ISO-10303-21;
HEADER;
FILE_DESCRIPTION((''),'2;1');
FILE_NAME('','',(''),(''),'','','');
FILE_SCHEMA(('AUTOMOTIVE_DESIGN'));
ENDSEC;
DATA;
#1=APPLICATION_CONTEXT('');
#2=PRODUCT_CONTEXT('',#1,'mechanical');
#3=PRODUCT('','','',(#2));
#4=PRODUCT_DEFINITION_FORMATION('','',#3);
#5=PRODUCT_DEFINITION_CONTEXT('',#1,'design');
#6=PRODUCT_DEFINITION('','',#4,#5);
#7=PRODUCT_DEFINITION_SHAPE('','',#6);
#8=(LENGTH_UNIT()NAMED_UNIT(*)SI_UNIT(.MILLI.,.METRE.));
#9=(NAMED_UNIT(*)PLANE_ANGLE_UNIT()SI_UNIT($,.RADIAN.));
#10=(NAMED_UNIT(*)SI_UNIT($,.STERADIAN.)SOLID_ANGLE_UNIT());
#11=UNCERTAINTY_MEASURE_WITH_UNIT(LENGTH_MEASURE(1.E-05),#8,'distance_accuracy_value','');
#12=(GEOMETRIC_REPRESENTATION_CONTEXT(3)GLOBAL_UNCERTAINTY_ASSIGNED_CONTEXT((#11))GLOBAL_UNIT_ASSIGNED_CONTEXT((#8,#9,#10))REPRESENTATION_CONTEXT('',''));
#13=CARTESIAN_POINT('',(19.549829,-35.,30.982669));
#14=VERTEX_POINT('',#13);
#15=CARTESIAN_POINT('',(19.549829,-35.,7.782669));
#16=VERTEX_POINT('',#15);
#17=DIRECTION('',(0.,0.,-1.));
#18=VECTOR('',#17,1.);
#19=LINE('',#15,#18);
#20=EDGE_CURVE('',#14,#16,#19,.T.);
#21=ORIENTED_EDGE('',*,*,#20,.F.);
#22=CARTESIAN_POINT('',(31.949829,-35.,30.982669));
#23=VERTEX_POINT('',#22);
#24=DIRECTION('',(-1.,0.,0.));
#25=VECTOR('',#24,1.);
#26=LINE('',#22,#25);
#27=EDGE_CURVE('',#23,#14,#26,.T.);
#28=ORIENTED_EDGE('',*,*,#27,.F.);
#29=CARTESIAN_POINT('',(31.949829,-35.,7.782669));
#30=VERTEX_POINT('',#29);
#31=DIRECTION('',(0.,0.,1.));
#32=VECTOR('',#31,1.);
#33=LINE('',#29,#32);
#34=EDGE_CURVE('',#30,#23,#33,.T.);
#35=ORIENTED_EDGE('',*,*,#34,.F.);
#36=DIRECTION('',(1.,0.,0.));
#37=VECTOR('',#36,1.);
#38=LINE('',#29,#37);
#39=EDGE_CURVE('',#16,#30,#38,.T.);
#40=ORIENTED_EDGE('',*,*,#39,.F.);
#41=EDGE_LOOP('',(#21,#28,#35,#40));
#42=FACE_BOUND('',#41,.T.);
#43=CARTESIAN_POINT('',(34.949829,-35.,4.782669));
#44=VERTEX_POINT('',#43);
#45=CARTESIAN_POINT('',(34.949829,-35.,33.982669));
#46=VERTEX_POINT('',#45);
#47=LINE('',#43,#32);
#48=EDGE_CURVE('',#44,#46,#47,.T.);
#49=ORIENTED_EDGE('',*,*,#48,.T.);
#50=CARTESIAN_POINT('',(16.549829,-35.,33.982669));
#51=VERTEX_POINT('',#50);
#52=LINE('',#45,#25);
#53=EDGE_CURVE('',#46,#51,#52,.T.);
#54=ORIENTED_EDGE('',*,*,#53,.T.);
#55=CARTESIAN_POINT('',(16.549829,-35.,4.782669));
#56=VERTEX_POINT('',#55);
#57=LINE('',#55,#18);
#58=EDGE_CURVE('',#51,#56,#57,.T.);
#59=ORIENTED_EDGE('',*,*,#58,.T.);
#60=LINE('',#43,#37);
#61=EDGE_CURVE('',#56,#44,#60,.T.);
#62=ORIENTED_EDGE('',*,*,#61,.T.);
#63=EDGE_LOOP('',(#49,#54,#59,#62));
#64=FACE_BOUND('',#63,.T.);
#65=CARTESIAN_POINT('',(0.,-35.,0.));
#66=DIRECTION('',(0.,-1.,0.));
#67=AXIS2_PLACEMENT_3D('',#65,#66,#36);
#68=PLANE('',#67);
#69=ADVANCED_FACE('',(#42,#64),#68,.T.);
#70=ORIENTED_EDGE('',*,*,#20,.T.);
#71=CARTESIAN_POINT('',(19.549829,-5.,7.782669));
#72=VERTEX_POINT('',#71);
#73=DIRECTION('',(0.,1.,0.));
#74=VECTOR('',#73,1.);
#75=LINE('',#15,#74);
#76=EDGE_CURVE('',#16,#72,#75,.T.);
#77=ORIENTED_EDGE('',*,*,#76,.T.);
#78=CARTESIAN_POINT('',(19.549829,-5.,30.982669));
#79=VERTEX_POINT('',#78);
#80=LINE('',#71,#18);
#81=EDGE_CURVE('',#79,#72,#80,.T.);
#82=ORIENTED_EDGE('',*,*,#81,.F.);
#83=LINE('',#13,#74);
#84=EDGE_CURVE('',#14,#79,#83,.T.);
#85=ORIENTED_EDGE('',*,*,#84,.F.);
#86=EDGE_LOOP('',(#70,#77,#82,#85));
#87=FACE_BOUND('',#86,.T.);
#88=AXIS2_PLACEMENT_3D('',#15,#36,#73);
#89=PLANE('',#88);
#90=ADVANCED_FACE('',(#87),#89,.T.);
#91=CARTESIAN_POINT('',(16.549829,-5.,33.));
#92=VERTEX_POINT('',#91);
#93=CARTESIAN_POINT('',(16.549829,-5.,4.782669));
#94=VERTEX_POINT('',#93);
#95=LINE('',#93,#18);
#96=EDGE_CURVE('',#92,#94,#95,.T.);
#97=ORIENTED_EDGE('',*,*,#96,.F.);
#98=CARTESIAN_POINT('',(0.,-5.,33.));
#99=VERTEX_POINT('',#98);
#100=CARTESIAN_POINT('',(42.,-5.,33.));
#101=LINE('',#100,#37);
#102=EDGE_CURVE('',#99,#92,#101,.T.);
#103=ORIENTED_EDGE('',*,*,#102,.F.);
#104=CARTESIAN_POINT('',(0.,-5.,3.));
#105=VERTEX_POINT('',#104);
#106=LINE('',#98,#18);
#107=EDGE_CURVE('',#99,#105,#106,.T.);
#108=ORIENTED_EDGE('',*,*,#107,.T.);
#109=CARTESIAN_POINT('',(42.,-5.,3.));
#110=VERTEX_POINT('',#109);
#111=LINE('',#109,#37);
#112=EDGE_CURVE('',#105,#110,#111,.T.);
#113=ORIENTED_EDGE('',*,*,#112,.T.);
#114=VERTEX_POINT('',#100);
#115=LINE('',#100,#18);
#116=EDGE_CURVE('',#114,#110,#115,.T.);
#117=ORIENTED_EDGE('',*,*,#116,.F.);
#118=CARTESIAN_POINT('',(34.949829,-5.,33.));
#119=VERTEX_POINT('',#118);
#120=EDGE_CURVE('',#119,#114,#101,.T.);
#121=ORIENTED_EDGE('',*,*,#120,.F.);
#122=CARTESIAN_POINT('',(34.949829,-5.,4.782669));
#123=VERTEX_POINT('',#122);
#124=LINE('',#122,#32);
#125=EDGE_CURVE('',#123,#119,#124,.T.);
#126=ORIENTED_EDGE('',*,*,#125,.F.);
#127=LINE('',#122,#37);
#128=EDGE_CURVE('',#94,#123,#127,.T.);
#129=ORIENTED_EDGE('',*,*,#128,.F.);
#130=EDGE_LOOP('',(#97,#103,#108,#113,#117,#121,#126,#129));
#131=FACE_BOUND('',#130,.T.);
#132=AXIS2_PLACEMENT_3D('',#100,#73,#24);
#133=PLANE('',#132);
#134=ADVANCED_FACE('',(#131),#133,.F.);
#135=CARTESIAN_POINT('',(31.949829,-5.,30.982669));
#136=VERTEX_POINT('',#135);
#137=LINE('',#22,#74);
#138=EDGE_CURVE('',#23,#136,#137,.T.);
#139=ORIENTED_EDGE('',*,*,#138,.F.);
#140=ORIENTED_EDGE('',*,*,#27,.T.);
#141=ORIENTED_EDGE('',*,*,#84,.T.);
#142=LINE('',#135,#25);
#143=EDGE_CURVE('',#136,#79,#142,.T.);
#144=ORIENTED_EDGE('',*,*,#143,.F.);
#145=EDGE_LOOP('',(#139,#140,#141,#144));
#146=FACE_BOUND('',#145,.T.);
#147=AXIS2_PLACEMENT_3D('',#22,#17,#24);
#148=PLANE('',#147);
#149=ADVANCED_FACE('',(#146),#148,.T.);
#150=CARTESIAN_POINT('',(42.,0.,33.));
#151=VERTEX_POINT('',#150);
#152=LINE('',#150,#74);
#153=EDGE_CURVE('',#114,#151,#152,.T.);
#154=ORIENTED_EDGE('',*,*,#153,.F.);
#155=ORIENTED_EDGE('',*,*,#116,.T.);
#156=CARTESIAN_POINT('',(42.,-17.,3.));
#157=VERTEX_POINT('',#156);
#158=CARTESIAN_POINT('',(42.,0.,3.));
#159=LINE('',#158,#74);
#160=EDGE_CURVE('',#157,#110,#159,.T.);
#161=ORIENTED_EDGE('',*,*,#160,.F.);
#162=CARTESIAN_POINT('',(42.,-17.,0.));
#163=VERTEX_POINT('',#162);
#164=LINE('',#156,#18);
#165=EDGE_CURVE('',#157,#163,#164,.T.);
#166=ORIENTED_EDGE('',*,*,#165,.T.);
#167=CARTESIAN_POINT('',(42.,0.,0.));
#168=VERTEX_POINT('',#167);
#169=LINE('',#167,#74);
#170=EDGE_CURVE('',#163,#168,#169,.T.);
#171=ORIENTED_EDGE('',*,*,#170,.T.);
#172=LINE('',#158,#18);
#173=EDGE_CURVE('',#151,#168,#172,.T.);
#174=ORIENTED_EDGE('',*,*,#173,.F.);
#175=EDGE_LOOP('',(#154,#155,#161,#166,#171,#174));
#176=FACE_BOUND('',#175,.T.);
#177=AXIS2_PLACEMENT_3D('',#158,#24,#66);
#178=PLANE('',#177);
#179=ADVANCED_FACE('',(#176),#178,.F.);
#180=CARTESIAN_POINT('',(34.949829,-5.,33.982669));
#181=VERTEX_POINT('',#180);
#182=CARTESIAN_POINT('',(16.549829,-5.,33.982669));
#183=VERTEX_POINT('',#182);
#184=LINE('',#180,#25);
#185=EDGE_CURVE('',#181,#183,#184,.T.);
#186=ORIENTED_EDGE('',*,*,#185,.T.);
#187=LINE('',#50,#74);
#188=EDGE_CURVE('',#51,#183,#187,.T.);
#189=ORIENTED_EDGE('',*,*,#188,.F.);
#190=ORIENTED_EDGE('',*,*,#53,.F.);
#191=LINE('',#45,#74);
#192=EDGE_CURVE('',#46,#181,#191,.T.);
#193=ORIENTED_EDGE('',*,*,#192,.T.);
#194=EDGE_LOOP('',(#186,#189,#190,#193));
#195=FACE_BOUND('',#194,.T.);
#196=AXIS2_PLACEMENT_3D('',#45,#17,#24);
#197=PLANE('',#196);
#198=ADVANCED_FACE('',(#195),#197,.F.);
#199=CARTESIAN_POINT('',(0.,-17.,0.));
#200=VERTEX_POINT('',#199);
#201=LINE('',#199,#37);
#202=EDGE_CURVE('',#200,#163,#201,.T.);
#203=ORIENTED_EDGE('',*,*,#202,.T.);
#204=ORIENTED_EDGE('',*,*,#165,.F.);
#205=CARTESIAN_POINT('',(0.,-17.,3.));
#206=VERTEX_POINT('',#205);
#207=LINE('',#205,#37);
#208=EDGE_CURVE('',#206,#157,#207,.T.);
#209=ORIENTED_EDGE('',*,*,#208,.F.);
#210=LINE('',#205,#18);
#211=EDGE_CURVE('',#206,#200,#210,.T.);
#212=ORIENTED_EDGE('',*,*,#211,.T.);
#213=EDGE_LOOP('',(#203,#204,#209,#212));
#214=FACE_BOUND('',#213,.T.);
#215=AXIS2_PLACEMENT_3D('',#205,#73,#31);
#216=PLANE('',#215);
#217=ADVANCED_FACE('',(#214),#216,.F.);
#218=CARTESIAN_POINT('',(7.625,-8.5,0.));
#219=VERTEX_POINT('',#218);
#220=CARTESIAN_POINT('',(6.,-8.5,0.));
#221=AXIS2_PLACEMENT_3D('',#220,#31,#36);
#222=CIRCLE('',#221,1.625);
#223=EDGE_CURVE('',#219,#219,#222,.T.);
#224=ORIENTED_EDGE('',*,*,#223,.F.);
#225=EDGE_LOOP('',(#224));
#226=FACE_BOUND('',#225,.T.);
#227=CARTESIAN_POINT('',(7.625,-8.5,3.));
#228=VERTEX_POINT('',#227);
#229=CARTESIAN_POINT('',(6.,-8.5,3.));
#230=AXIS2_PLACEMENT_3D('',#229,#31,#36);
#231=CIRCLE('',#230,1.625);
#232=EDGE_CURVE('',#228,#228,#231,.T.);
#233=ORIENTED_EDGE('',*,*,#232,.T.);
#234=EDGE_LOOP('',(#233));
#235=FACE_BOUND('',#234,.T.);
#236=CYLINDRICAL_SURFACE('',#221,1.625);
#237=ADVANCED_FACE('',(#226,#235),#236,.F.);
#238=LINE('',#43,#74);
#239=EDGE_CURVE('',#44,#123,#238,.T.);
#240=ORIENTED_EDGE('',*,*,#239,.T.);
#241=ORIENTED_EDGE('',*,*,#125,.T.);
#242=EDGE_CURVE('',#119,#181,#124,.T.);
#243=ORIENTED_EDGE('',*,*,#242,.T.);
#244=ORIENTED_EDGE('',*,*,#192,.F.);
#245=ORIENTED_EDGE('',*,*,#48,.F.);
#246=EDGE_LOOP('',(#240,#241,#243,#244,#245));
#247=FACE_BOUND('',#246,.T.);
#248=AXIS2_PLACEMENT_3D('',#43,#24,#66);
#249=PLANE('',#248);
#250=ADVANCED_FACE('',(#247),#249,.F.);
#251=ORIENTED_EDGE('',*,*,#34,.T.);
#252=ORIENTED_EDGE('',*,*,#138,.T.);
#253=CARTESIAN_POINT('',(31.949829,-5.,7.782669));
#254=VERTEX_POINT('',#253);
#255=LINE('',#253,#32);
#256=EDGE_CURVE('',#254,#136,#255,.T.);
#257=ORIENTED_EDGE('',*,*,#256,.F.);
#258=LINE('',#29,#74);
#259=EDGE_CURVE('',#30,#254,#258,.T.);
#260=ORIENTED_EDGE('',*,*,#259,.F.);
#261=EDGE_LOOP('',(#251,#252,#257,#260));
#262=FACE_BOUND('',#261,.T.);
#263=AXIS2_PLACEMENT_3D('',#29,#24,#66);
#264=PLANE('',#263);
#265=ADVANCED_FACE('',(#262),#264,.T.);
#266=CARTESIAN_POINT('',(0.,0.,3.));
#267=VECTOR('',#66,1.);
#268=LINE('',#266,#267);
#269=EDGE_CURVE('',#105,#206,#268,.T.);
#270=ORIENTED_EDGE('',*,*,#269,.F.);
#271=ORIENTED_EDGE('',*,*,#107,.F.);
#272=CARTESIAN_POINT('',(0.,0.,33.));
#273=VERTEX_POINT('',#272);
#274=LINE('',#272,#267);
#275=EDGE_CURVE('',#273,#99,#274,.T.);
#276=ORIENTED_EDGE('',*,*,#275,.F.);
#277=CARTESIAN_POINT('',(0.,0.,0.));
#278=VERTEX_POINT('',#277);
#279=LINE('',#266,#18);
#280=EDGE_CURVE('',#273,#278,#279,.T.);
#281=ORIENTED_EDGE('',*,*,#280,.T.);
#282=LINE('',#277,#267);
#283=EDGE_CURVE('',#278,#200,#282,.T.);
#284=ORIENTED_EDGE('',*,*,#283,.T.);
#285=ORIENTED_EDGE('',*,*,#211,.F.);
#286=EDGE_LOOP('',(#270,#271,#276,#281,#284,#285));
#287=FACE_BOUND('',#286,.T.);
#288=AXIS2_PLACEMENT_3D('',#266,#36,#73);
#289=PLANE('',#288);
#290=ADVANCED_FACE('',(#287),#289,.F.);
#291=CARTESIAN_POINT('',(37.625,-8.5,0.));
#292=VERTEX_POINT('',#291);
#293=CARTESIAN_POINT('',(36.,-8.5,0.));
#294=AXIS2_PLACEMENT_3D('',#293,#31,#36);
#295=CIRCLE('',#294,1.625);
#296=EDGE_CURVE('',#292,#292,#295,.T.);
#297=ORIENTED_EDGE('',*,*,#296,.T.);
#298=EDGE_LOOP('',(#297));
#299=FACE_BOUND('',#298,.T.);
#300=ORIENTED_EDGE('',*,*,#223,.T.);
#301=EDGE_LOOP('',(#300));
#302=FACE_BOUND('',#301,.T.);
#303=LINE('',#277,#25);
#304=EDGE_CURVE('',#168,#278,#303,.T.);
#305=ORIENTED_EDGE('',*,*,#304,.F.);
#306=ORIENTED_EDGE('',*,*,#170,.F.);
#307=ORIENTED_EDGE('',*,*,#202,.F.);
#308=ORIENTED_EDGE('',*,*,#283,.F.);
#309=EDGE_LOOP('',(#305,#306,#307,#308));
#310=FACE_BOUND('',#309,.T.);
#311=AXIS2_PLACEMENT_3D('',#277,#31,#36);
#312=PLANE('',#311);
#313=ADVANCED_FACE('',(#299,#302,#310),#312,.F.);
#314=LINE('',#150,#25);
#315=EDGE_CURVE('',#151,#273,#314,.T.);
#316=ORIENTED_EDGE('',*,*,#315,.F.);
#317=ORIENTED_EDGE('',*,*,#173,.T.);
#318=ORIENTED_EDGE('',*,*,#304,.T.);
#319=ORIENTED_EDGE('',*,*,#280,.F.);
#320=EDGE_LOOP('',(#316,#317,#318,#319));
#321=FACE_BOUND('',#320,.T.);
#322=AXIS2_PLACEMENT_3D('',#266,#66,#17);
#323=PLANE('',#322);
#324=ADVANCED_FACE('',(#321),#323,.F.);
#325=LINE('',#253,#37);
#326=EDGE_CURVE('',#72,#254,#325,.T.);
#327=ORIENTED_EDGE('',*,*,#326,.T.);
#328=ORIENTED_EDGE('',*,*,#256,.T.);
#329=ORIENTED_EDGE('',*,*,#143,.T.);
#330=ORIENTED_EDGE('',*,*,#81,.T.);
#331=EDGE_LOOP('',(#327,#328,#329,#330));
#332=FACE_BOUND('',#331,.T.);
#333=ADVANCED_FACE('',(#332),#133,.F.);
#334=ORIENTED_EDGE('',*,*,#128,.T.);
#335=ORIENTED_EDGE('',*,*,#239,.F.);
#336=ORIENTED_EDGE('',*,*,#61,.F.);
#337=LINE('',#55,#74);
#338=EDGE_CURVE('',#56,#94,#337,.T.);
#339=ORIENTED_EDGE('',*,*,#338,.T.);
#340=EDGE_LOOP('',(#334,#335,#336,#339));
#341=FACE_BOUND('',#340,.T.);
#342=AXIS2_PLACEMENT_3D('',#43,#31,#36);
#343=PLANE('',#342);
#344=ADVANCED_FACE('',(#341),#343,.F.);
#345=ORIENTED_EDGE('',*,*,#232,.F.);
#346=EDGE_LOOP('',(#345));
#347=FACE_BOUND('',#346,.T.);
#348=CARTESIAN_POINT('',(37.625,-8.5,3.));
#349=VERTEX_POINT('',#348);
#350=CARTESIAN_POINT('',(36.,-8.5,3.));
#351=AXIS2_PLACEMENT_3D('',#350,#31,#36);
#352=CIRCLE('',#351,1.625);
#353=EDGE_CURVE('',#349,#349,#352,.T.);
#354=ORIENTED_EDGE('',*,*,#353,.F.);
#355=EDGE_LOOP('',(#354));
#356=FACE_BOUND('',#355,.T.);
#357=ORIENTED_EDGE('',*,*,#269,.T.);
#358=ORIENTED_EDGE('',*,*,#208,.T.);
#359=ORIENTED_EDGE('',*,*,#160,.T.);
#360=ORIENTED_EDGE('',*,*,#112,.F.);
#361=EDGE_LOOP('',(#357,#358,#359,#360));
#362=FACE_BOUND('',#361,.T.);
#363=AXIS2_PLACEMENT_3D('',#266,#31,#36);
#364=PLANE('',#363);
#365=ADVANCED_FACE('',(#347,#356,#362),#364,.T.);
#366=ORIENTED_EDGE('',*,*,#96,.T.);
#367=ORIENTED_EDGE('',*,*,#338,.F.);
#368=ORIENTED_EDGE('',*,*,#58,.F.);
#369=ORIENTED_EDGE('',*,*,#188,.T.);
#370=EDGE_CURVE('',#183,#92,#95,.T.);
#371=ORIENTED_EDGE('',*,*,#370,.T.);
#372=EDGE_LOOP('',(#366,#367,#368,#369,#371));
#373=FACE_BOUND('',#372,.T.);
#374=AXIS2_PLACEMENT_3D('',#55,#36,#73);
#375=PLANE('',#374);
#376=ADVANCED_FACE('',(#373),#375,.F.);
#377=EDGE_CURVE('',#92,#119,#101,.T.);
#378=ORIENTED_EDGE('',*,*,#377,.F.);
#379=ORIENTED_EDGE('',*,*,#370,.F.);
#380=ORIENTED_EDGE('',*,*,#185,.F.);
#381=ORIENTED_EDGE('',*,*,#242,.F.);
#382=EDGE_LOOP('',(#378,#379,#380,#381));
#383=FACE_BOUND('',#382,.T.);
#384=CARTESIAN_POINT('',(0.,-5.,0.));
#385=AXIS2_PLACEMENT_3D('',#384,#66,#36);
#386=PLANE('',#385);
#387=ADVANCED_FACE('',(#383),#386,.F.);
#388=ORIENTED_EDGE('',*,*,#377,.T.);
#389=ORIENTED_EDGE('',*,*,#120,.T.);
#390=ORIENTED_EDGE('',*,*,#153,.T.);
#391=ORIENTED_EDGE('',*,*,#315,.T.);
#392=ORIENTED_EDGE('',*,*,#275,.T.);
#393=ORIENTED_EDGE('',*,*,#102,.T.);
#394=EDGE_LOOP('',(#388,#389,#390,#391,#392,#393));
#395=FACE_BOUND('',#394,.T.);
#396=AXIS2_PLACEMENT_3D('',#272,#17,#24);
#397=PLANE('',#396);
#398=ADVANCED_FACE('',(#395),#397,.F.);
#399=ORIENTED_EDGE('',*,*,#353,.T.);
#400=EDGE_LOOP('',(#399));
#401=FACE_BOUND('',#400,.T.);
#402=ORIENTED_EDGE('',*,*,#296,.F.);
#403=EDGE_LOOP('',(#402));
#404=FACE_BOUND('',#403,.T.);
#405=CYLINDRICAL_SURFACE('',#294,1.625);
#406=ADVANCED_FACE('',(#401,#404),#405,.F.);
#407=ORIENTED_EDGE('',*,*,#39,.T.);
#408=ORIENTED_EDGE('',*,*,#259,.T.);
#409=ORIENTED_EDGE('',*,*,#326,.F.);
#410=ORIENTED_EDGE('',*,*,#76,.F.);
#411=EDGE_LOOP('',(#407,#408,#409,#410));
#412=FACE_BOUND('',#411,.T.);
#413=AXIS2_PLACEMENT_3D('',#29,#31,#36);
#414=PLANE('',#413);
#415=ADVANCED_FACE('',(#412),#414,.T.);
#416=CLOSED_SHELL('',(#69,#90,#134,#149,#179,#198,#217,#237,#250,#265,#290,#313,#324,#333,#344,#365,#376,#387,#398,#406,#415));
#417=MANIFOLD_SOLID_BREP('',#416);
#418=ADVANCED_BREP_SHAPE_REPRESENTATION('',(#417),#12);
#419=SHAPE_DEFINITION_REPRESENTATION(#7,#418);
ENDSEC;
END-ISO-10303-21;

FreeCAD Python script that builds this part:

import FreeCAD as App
import Part
import Sketcher

V = App.Vector

doc = App.newDocument("Part")
body = doc.addObject("PartDesign::Body", "Body")

sketch1 = body.newObject("Sketcher::SketchObject", "Sketch")
sketch1.AttachmentSupport = (doc.getObject("XY_Plane"), [""])
sketch1.MapMode = "FlatFace"
sketch1.addGeometry([
    Part.LineSegment(V(0, 0, 0), V(0, -17, 0)),
    Part.LineSegment(V(0, -17, 0), V(42, -17, 0)),
    Part.LineSegment(V(42, -17, 0), V(42, 0, 0)),
    Part.LineSegment(V(42, 0, 0), V(0, 0, 0)),
], False)
sketch1.addConstraint([
    Sketcher.Constraint("Coincident", 0, 2, 1, 1),
    Sketcher.Constraint("Coincident", 1, 2, 2, 1),
    Sketcher.Constraint("Coincident", 2, 2, 3, 1),
    Sketcher.Constraint("Coincident", 3, 2, 0, 1),
    Sketcher.Constraint("Vertical", 0),
    Sketcher.Constraint("Horizontal", 1),
    Sketcher.Constraint("Vertical", 2),
    Sketcher.Constraint("Horizontal", 3),
    Sketcher.Constraint("Coincident", 3, 2, -1, 1),
    Sketcher.Constraint("DistanceX", 1, 1, 1, 2, 42.0),
    Sketcher.Constraint("DistanceY", 0, 2, 0, 1, 17.0),
])
pad1 = body.newObject("PartDesign::Pad", "Pad")
pad1.Profile = sketch1
pad1.Length = 3

sketch2 = body.newObject("Sketcher::SketchObject", "Sketch001")
sketch2.AttachmentSupport = (doc.getObject("XY_Plane"), [""])
sketch2.MapMode = "FlatFace"
sketch2.AttachmentOffset = App.Placement(V(0, 0, 3), App.Rotation())
sketch2.addGeometry([
    Part.Circle(V(6, -8.5, 0), V(0, 0, 1), 1.6),
    Part.Circle(V(36, -8.5, 0), V(0, 0, 1), 1.6),
], False)
sketch2.addConstraint([
    Sketcher.Constraint("Equal", 0, 1),
    Sketcher.Constraint("Horizontal", 0, 3, 1, 3),
    Sketcher.Constraint("Diameter", 0, 3.25),
    Sketcher.Constraint("DistanceX", -1, 1, 0, 3, 6.0),
    Sketcher.Constraint("DistanceX", -1, 1, 1, 3, 36.0),
    Sketcher.Constraint("DistanceY", 0, 3, -1, 1, 8.5),
])
pocket1 = body.newObject("PartDesign::Pocket", "Pocket")
pocket1.Profile = sketch2
pocket1.Type = "ThroughAll"

sketch3 = body.newObject("Sketcher::SketchObject", "Sketch002")
sketch3.AttachmentSupport = (doc.getObject("XY_Plane"), [""])
sketch3.MapMode = "FlatFace"
sketch3.AttachmentOffset = App.Placement(V(0, 0, 3), App.Rotation())
sketch3.addGeometry([
    Part.LineSegment(V(0, 0, 0), V(0, -5, 0)),
    Part.LineSegment(V(0, -5, 0), V(42, -5, 0)),
    Part.LineSegment(V(42, -5, 0), V(42, 0, 0)),
    Part.LineSegment(V(42, 0, 0), V(0, 0, 0)),
], False)
sketch3.addConstraint([
    Sketcher.Constraint("Coincident", 0, 2, 1, 1),
    Sketcher.Constraint("Coincident", 1, 2, 2, 1),
    Sketcher.Constraint("Coincident", 2, 2, 3, 1),
    Sketcher.Constraint("Coincident", 3, 2, 0, 1),
    Sketcher.Constraint("Vertical", 0),
    Sketcher.Constraint("Horizontal", 1),
    Sketcher.Constraint("Vertical", 2),
    Sketcher.Constraint("Horizontal", 3),
    Sketcher.Constraint("Coincident", 3, 2, -1, 1),
    Sketcher.Constraint("DistanceX", 1, 1, 1, 2, 42.0),
    Sketcher.Constraint("DistanceY", 0, 2, 0, 1, 5.0),
])
pad2 = body.newObject("PartDesign::Pad", "Pad001")
pad2.Profile = sketch3
pad2.Length = 30

sketch4 = body.newObject("Sketcher::SketchObject", "Sketch003")
sketch4.AttachmentSupport = (doc.getObject("XZ_Plane"), [""])
sketch4.MapMode = "FlatFace"
sketch4.AttachmentOffset = App.Placement(V(0, 0, 5), App.Rotation())
sketch4.addGeometry([
    Part.LineSegment(V(17, 34, 0), V(17, 5, 0)),
    Part.LineSegment(V(17, 5, 0), V(35, 5, 0)),
    Part.LineSegment(V(35, 5, 0), V(35, 34, 0)),
    Part.LineSegment(V(35, 34, 0), V(17, 34, 0)),
    Part.LineSegment(V(32, 8, 0), V(20, 8, 0)),
    Part.LineSegment(V(20, 8, 0), V(20, 31, 0)),
    Part.LineSegment(V(20, 31, 0), V(32, 31, 0)),
    Part.LineSegment(V(32, 31, 0), V(32, 8, 0)),
], False)
sketch4.addConstraint([
    Sketcher.Constraint("Coincident", 0, 2, 1, 1),
    Sketcher.Constraint("Coincident", 1, 2, 2, 1),
    Sketcher.Constraint("Coincident", 2, 2, 3, 1),
    Sketcher.Constraint("Coincident", 3, 2, 0, 1),
    Sketcher.Constraint("Coincident", 4, 2, 5, 1),
    Sketcher.Constraint("Coincident", 5, 2, 6, 1),
    Sketcher.Constraint("Coincident", 6, 2, 7, 1),
    Sketcher.Constraint("Coincident", 7, 2, 4, 1),
    Sketcher.Constraint("Vertical", 0),
    Sketcher.Constraint("Horizontal", 1),
    Sketcher.Constraint("Vertical", 2),
    Sketcher.Constraint("Horizontal", 3),
    Sketcher.Constraint("Horizontal", 4),
    Sketcher.Constraint("Vertical", 5),
    Sketcher.Constraint("Horizontal", 6),
    Sketcher.Constraint("Vertical", 7),
    Sketcher.Constraint("DistanceX", 1, 1, 1, 2, 18.4),
    Sketcher.Constraint("DistanceX", 4, 2, 4, 1, 12.4),
    Sketcher.Constraint("DistanceY", 0, 2, 0, 1, 29.2),
    Sketcher.Constraint("DistanceY", 5, 1, 5, 2, 23.2),
    Sketcher.Constraint("DistanceX", 0, 2, 4, 2, 3.0),
    Sketcher.Constraint("DistanceY", 0, 2, 4, 2, 3.0),
    Sketcher.Constraint("DistanceX", -1, 1, 0, 2, 16.549829),
    Sketcher.Constraint("DistanceY", -1, 1, 0, 2, 4.782669),
])
pad3 = body.newObject("PartDesign::Pad", "Pad002")
pad3.Profile = sketch4
pad3.Length = 30

doc.recompute()
